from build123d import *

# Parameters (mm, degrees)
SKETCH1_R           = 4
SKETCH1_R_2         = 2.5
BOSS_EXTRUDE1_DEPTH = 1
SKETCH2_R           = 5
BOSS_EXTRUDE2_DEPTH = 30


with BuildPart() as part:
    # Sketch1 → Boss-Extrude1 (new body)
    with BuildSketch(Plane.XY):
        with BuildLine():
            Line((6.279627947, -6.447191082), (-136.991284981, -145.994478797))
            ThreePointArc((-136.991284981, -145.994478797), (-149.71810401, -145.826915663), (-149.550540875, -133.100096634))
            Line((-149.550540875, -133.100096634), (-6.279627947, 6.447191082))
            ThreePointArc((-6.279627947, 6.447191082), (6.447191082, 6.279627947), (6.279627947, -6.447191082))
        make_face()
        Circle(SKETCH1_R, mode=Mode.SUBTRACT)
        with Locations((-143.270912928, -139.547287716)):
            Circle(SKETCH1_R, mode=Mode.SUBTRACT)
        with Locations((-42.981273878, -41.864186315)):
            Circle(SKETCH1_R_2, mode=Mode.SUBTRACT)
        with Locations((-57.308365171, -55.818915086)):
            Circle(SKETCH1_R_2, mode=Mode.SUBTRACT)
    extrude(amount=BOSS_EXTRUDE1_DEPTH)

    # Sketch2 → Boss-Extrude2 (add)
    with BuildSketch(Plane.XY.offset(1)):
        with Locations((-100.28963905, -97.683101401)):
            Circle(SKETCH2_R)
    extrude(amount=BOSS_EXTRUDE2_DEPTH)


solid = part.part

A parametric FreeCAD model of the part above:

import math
import FreeCAD as App
import Part
import Sketcher
from FreeCAD import Vector
Q = App.Units.Quantity

doc = App.newDocument("Part")
body = doc.addObject("PartDesign::Body", "Body")

sketch1 = doc.addObject("Sketcher::SketchObject", "Sketch")
body.addObject(sketch1)
sketch1.AttachmentSupport = (doc.XY_Plane, [""])
sketch1.MapMode = "FlatFace"
sketch1.addGeometry([
    Part.LineSegment(Vector(-137, -146, 0), Vector(6.3, -6.4, 0)),
    Part.ArcOfCircle(Part.Circle(Vector(0, 0, 0), Vector(0, 0, 1), 9), math.radians(-46), math.radians(134)),
    Part.LineSegment(Vector(-6.3, 6.4, 0), Vector(-149.6, -133.1, 0)),
    Part.ArcOfCircle(Part.Circle(Vector(-143.3, -139.5, 0), Vector(0, 0, 1), 9), math.radians(134), math.radians(314)),
    Part.Circle(Vector(-143.3, -139.5, 0), Vector(0, 0, 1), 4),
    Part.Circle(Vector(-57.3, -55.8, 0), Vector(0, 0, 1), 2.5),
    Part.Circle(Vector(-43, -41.9, 0), Vector(0, 0, 1), 2.5),
    Part.Circle(Vector(0, 0, 0), Vector(0, 0, 1), 4),
], False)
sketch1.addConstraint([
    Sketcher.Constraint("Tangent", 0, 2, 1, 1),
    Sketcher.Constraint("Tangent", 1, 2, 2, 1),
    Sketcher.Constraint("Tangent", 2, 2, 3, 1),
    Sketcher.Constraint("Tangent", 3, 2, 0, 1),
    Sketcher.Constraint("Coincident", 1, 3, -1, 1),
    Sketcher.Constraint("Coincident", 7, 3, -1, 1),
    Sketcher.Constraint("Coincident", 4, 3, 3, 3),
    Sketcher.Constraint("Equal", 1, 3),
    Sketcher.Constraint("Equal", 5, 6),
    Sketcher.Constraint("Equal", 4, 7),
    Sketcher.Constraint("Diameter", 4, Q("8 mm")),
    Sketcher.Constraint("Diameter", 5, Q("5 mm")),
    Sketcher.Constraint("Radius", 1, Q("9 mm")),
    Sketcher.Constraint("Distance", 0, Q("200 mm")),
    Sketcher.Constraint("DistanceY", 4, 3, 6, 3, Q("97.683101 mm")),
    Sketcher.Constraint("DistanceX", 6, 3, 0, 2, Q("49.260902 mm")),
    Sketcher.Constraint("DistanceY", 0, 2, -1, 1, Q("6.447191 mm")),
    Sketcher.Constraint("DistanceX", 5, 3, 6, 3, Q("14.327091 mm")),
    Sketcher.Constraint("DistanceY", 5, 3, 6, 3, Q("13.954729 mm")),
])
pad1 = doc.addObject("PartDesign::Pad", "Pad")
body.addObject(pad1)
pad1.Profile = sketch1
pad1.Length = 1

sketch2 = doc.addObject("Sketcher::SketchObject", "Sketch001")
body.addObject(sketch2)
sketch2.AttachmentSupport = (doc.XY_Plane, [""])
sketch2.MapMode = "FlatFace"
sketch2.AttachmentOffset = App.Placement(Vector(0, 0, 1), App.Rotation())
sketch2.addGeometry(Part.Circle(Vector(-100, -98, 0), Vector(0, 0, 1), 5), False)
sketch2.addConstraint([
    Sketcher.Constraint("Diameter", 0, Q("10 mm")),
    Sketcher.Constraint("DistanceY", 0, 3, -1, 1, Q("97.683101 mm")),
    Sketcher.Constraint("DistanceX", 0, 3, -1, 1, Q("100.289639 mm")),
])
pad2 = doc.addObject("PartDesign::Pad", "Pad001")
body.addObject(pad2)
pad2.Profile = sketch2
pad2.Length = 30

doc.recompute()
